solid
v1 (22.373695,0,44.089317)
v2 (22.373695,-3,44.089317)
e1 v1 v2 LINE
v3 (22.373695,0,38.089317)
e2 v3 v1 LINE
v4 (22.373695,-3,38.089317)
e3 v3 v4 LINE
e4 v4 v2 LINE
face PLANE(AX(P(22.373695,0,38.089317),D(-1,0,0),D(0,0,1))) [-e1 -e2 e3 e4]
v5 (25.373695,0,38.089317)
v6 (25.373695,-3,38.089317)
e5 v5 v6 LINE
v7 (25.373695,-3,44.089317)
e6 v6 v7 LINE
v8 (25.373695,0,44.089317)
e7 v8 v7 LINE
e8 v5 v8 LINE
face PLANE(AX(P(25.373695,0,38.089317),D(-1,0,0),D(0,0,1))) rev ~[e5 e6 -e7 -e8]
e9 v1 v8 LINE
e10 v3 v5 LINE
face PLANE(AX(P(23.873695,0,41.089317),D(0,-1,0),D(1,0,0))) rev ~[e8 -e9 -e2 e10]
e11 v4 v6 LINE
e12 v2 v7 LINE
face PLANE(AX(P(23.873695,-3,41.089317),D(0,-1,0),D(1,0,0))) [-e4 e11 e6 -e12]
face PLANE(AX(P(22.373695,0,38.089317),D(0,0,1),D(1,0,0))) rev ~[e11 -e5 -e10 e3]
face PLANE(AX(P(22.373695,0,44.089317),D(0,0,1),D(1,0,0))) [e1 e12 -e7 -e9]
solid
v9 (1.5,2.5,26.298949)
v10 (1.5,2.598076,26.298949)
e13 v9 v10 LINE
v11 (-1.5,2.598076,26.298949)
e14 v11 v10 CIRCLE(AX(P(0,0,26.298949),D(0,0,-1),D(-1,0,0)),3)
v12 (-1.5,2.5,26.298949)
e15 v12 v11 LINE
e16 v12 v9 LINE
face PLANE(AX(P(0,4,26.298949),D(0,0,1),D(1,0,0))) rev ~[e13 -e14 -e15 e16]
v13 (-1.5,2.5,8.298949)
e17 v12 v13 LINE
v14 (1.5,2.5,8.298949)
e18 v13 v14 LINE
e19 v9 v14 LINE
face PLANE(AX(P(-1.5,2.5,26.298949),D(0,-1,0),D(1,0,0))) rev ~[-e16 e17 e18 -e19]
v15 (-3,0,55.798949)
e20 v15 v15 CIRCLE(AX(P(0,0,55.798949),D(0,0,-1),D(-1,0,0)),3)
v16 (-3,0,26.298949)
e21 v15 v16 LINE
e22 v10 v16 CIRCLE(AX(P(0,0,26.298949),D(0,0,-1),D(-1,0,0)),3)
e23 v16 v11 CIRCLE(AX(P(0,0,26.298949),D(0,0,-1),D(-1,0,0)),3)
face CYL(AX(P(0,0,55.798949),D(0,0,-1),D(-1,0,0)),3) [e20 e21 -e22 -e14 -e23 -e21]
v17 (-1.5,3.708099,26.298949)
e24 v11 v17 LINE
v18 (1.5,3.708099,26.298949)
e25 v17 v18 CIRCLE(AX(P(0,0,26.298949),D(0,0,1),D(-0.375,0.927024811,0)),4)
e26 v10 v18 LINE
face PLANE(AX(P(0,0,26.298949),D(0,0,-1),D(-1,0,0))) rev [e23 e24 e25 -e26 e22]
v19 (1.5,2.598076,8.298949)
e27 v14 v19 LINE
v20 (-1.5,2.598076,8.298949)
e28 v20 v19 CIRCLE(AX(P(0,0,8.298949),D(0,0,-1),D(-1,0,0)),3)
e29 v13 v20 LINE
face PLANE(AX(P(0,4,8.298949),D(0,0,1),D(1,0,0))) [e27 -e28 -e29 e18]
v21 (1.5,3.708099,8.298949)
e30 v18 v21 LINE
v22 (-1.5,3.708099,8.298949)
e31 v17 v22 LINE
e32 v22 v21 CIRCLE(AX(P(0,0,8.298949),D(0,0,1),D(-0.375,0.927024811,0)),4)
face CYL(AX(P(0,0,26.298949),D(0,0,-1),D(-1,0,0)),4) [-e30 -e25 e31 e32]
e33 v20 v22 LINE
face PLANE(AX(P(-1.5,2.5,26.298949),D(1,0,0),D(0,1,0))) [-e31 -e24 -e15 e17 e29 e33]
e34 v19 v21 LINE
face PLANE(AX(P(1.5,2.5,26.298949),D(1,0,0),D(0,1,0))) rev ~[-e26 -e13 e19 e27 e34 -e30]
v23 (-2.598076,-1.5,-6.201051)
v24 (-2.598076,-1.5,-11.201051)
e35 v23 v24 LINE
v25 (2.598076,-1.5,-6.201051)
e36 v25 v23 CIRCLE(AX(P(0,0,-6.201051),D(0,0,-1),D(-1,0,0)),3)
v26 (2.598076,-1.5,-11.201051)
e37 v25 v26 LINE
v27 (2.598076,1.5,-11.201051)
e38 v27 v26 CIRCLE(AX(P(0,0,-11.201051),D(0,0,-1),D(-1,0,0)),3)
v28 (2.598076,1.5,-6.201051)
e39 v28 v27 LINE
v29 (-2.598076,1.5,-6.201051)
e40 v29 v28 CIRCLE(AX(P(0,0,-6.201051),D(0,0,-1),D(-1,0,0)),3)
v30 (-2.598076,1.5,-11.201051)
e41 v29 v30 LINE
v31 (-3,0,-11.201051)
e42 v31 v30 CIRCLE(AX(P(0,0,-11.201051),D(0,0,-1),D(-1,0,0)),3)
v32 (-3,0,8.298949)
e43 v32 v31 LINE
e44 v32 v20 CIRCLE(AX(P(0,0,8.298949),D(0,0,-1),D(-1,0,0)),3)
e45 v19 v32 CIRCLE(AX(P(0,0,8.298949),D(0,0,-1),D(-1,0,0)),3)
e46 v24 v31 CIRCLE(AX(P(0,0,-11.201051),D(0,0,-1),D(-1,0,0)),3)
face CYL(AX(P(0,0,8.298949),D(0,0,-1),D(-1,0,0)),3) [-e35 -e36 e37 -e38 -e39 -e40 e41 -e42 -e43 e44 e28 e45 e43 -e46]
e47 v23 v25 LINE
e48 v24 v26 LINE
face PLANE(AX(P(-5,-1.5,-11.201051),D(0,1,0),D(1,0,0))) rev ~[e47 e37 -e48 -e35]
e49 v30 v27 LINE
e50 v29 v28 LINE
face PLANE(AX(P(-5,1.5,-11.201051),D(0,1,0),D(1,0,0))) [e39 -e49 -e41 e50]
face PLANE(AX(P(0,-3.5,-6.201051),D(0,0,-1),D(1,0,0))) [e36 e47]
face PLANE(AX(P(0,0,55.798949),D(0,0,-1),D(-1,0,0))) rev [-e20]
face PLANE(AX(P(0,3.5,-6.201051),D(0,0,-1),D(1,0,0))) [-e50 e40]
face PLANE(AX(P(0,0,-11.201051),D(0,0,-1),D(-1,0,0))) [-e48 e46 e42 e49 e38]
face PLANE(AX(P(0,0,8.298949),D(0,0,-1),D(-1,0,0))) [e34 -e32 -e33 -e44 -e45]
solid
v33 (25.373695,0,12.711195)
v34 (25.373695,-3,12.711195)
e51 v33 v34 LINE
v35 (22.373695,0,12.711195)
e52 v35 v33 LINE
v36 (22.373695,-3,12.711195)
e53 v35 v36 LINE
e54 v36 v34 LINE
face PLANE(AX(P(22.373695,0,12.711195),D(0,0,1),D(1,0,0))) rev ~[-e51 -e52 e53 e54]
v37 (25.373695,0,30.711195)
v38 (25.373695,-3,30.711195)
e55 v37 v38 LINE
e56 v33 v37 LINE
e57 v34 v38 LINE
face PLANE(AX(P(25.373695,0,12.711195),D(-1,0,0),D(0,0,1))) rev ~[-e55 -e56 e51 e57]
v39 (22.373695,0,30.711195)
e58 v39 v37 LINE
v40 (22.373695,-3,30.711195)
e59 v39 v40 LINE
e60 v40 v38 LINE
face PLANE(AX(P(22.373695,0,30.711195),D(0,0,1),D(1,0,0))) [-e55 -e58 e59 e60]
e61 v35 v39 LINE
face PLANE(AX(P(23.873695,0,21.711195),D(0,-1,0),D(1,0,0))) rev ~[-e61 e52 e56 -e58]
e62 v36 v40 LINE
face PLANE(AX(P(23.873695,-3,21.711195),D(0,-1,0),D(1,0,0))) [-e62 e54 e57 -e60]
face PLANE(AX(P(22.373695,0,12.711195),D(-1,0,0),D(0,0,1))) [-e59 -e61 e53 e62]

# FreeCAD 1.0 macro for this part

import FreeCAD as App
import Part
import Sketcher

V = App.Vector

doc = App.newDocument("Part")
body = doc.addObject("PartDesign::Body", "Body")

# Sketch on XZ plane
sketch1 = body.newObject("Sketcher::SketchObject", "Sketch")
sketch1.AttachmentSupport = (doc.getObject("XZ_Plane"), [""])
sketch1.MapMode = "FlatFace"
sketch1.addGeometry([
    Part.LineSegment(V(0, -11.201051, 0), V(0, 55.798949, 0)),  # 0
    Part.LineSegment(V(0, 55.798949, 0), V(-3, 55.798949, 0)),  # 1
    Part.LineSegment(V(-3, 55.798949, 0), V(-3, 26.298949, 0)),  # 2
    Part.LineSegment(V(-3, 26.298949, 0), V(-4, 26.298949, 0)),  # 3
    Part.LineSegment(V(-4, 26.298949, 0), V(-4, 8.298949, 0)),  # 4
    Part.LineSegment(V(-4, 8.298949, 0), V(-3, 8.298949, 0)),  # 5
    Part.LineSegment(V(-3, 8.298949, 0), V(-3, -11.201051, 0)),  # 6
    Part.LineSegment(V(-3, -11.201051, 0), V(0, -11.201051, 0)),  # 7
], False)
sketch1.addConstraint([
    Sketcher.Constraint("Coincident", 0, 2, 1, 1),
    Sketcher.Constraint("Coincident", 1, 2, 2, 1),
    Sketcher.Constraint("Coincident", 2, 2, 3, 1),
    Sketcher.Constraint("Coincident", 3, 2, 4, 1),
    Sketcher.Constraint("Coincident", 4, 2, 5, 1),
    Sketcher.Constraint("Coincident", 5, 2, 6, 1),
    Sketcher.Constraint("Coincident", 6, 2, 7, 1),
    Sketcher.Constraint("Coincident", 7, 2, 0, 1),
    Sketcher.Constraint("Vertical", 0),
    Sketcher.Constraint("Horizontal", 1),
    Sketcher.Constraint("Vertical", 2),
    Sketcher.Constraint("Horizontal", 3),
    Sketcher.Constraint("Vertical", 4),
    Sketcher.Constraint("Horizontal", 5),
    Sketcher.Constraint("Vertical", 6),
    Sketcher.Constraint("Horizontal", 7),
    Sketcher.Constraint("PointOnObject", 0, 2, -2),
    Sketcher.Constraint("Vertical", 2, 2, 5, 2),
    Sketcher.Constraint("DistanceX", 1, 2, 1, 1, 3.0),
    Sketcher.Constraint("DistanceX", 3, 2, 3, 1, 1.0),
    Sketcher.Constraint("DistanceY", 0, 1, 0, 2, 67.0),
    Sketcher.Constraint("DistanceY", 4, 2, 4, 1, 18.0),
    Sketcher.Constraint("DistanceY", 2, 2, 2, 1, 29.5),
    Sketcher.Constraint("DistanceY", -1, 1, 0, 2, 55.798949),
])
revolution = body.newObject("PartDesign::Revolution", "Revolution")
revolution.Profile = sketch1
revolution.ReferenceAxis = (sketch1, ["V_Axis"])
revolution.Angle = 360

# Sketch on XY plane
sketch2 = body.newObject("Sketcher::SketchObject", "Sketch001")
sketch2.AttachmentSupport = (doc.getObject("XY_Plane"), [""])
sketch2.MapMode = "FlatFace"
sketch2.AttachmentOffset = App.Placement(V(0, 0, 26.298949), App.Rotation())
sketch2.addGeometry([
    Part.LineSegment(V(-1.5, 5.5, 0), V(-1.5, 2.5, 0)),
    Part.LineSegment(V(-1.5, 2.5, 0), V(1.5, 2.5, 0)),
    Part.LineSegment(V(1.5, 2.5, 0), V(1.5, 5.5, 0)),
    Part.LineSegment(V(1.5, 5.5, 0), V(-1.5, 5.5, 0)),
], False)
sketch2.addConstraint([
    Sketcher.Constraint("Coincident", 0, 2, 1, 1),
    Sketcher.Constraint("Coincident", 1, 2, 2, 1),
    Sketcher.Constraint("Coincident", 2, 2, 3, 1),
    Sketcher.Constraint("Coincident", 3, 2, 0, 1),
    Sketcher.Constraint("Vertical", 0),
    Sketcher.Constraint("Horizontal", 1),
    Sketcher.Constraint("Vertical", 2),
    Sketcher.Constraint("Horizontal", 3),
    Sketcher.Constraint("Equal", 3, 0),
    Sketcher.Constraint("DistanceX", 1, 1, 1, 2, 3.0),
    Sketcher.Constraint("DistanceX", 0, 2, -1, 1, 1.5),
    Sketcher.Constraint("DistanceY", -1, 1, 0, 2, 2.5),
])
pocket1 = body.newObject("PartDesign::Pocket", "Pocket")
pocket1.Profile = sketch2
pocket1.Length = 18

# Sketch on XY plane
sketch3 = body.newObject("Sketcher::SketchObject", "Sketch002")
sketch3.AttachmentSupport = (doc.getObject("XY_Plane"), [""])
sketch3.MapMode = "FlatFace"
sketch3.AttachmentOffset = App.Placement(V(0, 0, -11.201051), App.Rotation())
sketch3.addGeometry([
    Part.LineSegment(V(-5, 1.5, 0), V(-5, 5.5, 0)),  # 0
    Part.LineSegment(V(-5, 5.5, 0), V(5, 5.5, 0)),  # 1
    Part.LineSegment(V(5, 5.5, 0), V(5, 1.5, 0)),  # 2
    Part.LineSegment(V(5, 1.5, 0), V(-5, 1.5, 0)),  # 3
    Part.LineSegment(V(-5, -5.5, 0), V(-5, -1.5, 0)),  # 4
    Part.LineSegment(V(-5, -1.5, 0), V(5, -1.5, 0)),  # 5
    Part.LineSegment(V(5, -1.5, 0), V(5, -5.5, 0)),  # 6
    Part.LineSegment(V(5, -5.5, 0), V(-5, -5.5, 0)),  # 7
], False)
sketch3.addConstraint([
    Sketcher.Constraint("Coincident", 0, 2, 1, 1),
    Sketcher.Constraint("Coincident", 1, 2, 2, 1),
    Sketcher.Constraint("Coincident", 2, 2, 3, 1),
    Sketcher.Constraint("Coincident", 3, 2, 0, 1),
    Sketcher.Constraint("Coincident", 4, 2, 5, 1),
    Sketcher.Constraint("Coincident", 5, 2, 6, 1),
    Sketcher.Constraint("Coincident", 6, 2, 7, 1),
    Sketcher.Constraint("Coincident", 7, 2, 4, 1),
    Sketcher.Constraint("Vertical", 0),
    Sketcher.Constraint("Horizontal", 1),
    Sketcher.Constraint("Vertical", 2),
    Sketcher.Constraint("Horizontal", 3),
    Sketcher.Constraint("Vertical", 4),
    Sketcher.Constraint("Horizontal", 5),
    Sketcher.Constraint("Vertical", 6),
    Sketcher.Constraint("Horizontal", 7),
    Sketcher.Constraint("Symmetric", 2, 2, 4, 2, -1, 1),
    Sketcher.Constraint("Symmetric", 0, 2, 6, 2, -1, 1),
    Sketcher.Constraint("Vertical", 3, 2, 4, 2),
    Sketcher.Constraint("DistanceX", 1, 1, 1, 2, 10.0),
    Sketcher.Constraint("DistanceY", 0, 1, 0, 2, 4.0),
    Sketcher.Constraint("DistanceY", 4, 2, 3, 2, 3.0),
])
pocket2 = body.newObject("PartDesign::Pocket", "Pocket001")
pocket2.Profile = sketch3
pocket2.Length = 5
pocket2.Reversed = True
body2 = doc.addObject("PartDesign::Body", "Body001")
body2.AllowCompound = True

# Sketch on XZ plane
sketch4 = body2.newObject("Sketcher::SketchObject", "Sketch003")
sketch4.AttachmentSupport = (doc.getObject("XZ_Plane001"), [""])
sketch4.MapMode = "FlatFace"
sketch4.addGeometry([
    Part.LineSegment(V(22.373695, 44.089317, 0), V(22.373695, 38.089317, 0)),  # 0
    Part.LineSegment(V(22.373695, 38.089317, 0), V(25.373695, 38.089317, 0)),  # 1
    Part.LineSegment(V(25.373695, 38.089317, 0), V(25.373695, 44.089317, 0)),  # 2
    Part.LineSegment(V(25.373695, 44.089317, 0), V(22.373695, 44.089317, 0)),  # 3
    Part.LineSegment(V(22.373695, 30.711195, 0), V(22.373695, 12.711195, 0)),  # 4
    Part.LineSegment(V(22.373695, 12.711195, 0), V(25.373695, 12.711195, 0)),  # 5
    Part.LineSegment(V(25.373695, 12.711195, 0), V(25.373695, 30.711195, 0)),  # 6
    Part.LineSegment(V(25.373695, 30.711195, 0), V(22.373695, 30.711195, 0)),  # 7
], False)
sketch4.addConstraint([
    Sketcher.Constraint("Coincident", 0, 2, 1, 1),
    Sketcher.Constraint("Coincident", 1, 2, 2, 1),
    Sketcher.Constraint("Coincident", 2, 2, 3, 1),
    Sketcher.Constraint("Coincident", 3, 2, 0, 1),
    Sketcher.Constraint("Coincident", 4, 2, 5, 1),
    Sketcher.Constraint("Coincident", 5, 2, 6, 1),
    Sketcher.Constraint("Coincident", 6, 2, 7, 1),
    Sketcher.Constraint("Coincident", 7, 2, 4, 1),
    Sketcher.Constraint("Vertical", 0),
    Sketcher.Constraint("Horizontal", 1),
    Sketcher.Constraint("Vertical", 2),
    Sketcher.Constraint("Horizontal", 3),
    Sketcher.Constraint("Vertical", 4),
    Sketcher.Constraint("Horizontal", 5),
    Sketcher.Constraint("Vertical", 6),
    Sketcher.Constraint("Horizontal", 7),
    Sketcher.Constraint("Vertical", 3, 2, 4, 2),
    Sketcher.Constraint("Vertical", 2, 2, 5, 2),
    Sketcher.Constraint("DistanceX", 1, 1, 1, 2, 3.0),
    Sketcher.Constraint("DistanceY", 0, 2, 0, 1, 6.0),
    Sketcher.Constraint("DistanceY", 4, 2, 4, 1, 18.0),
    Sketcher.Constraint("DistanceX", -1, 1, 0, 2, 22.373695),
    Sketcher.Constraint("DistanceY", -1, 1, 0, 2, 38.089317),
    Sketcher.Constraint("DistanceY", -1, 1, 4, 2, 12.711195),
])
pad1 = body2.newObject("PartDesign::Pad", "Pad")
pad1.Profile = sketch4
pad1.Length = 3

doc.recompute()
